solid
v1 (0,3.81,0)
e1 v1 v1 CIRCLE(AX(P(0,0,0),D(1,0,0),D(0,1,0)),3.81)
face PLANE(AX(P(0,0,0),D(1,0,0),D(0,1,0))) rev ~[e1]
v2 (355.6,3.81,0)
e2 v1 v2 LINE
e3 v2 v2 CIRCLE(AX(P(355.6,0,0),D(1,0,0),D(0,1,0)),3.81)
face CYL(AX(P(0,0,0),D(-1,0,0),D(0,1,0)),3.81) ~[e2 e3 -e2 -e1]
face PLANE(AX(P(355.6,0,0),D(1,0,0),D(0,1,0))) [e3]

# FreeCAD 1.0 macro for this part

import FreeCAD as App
import Part
import Sketcher
Q = App.Units.Quantity

doc = App.newDocument("Part")
params = doc.addObject("Spreadsheet::Sheet", "Params")
for row, (alias, value) in enumerate([
    ("sketch1_diameter", "0.3 in"),
    ("pad1_length", "14 in"),
], start=1):
    params.set(f"A{row}", alias)
    params.set(f"B{row}", "=" + value)
    params.setAlias(f"B{row}", alias)

body = doc.addObject("PartDesign::Body", "Body")

# Sketch on YZ plane
sketch1 = body.newObject("Sketcher::SketchObject", "Sketch")
sketch1.AttachmentSupport = (doc.getObject("YZ_Plane"), [""])
sketch1.MapMode = "FlatFace"
sketch1.addGeometry(Part.Circle(App.Vector(0, 0, 0), App.Vector(0, 0, 1), 3.81), False)
sketch1.addConstraint([
    Sketcher.Constraint("Coincident", 0, 3, -1, 1),
    Sketcher.Constraint("Diameter", 0, Q("0.3 in")),
])
sketch1.setExpression("Constraints[1]", "Params.sketch1_diameter")
pad1 = body.newObject("PartDesign::Pad", "Pad")
pad1.Profile = sketch1
pad1.setExpression("Length", "Params.pad1_length")

doc.recompute()
